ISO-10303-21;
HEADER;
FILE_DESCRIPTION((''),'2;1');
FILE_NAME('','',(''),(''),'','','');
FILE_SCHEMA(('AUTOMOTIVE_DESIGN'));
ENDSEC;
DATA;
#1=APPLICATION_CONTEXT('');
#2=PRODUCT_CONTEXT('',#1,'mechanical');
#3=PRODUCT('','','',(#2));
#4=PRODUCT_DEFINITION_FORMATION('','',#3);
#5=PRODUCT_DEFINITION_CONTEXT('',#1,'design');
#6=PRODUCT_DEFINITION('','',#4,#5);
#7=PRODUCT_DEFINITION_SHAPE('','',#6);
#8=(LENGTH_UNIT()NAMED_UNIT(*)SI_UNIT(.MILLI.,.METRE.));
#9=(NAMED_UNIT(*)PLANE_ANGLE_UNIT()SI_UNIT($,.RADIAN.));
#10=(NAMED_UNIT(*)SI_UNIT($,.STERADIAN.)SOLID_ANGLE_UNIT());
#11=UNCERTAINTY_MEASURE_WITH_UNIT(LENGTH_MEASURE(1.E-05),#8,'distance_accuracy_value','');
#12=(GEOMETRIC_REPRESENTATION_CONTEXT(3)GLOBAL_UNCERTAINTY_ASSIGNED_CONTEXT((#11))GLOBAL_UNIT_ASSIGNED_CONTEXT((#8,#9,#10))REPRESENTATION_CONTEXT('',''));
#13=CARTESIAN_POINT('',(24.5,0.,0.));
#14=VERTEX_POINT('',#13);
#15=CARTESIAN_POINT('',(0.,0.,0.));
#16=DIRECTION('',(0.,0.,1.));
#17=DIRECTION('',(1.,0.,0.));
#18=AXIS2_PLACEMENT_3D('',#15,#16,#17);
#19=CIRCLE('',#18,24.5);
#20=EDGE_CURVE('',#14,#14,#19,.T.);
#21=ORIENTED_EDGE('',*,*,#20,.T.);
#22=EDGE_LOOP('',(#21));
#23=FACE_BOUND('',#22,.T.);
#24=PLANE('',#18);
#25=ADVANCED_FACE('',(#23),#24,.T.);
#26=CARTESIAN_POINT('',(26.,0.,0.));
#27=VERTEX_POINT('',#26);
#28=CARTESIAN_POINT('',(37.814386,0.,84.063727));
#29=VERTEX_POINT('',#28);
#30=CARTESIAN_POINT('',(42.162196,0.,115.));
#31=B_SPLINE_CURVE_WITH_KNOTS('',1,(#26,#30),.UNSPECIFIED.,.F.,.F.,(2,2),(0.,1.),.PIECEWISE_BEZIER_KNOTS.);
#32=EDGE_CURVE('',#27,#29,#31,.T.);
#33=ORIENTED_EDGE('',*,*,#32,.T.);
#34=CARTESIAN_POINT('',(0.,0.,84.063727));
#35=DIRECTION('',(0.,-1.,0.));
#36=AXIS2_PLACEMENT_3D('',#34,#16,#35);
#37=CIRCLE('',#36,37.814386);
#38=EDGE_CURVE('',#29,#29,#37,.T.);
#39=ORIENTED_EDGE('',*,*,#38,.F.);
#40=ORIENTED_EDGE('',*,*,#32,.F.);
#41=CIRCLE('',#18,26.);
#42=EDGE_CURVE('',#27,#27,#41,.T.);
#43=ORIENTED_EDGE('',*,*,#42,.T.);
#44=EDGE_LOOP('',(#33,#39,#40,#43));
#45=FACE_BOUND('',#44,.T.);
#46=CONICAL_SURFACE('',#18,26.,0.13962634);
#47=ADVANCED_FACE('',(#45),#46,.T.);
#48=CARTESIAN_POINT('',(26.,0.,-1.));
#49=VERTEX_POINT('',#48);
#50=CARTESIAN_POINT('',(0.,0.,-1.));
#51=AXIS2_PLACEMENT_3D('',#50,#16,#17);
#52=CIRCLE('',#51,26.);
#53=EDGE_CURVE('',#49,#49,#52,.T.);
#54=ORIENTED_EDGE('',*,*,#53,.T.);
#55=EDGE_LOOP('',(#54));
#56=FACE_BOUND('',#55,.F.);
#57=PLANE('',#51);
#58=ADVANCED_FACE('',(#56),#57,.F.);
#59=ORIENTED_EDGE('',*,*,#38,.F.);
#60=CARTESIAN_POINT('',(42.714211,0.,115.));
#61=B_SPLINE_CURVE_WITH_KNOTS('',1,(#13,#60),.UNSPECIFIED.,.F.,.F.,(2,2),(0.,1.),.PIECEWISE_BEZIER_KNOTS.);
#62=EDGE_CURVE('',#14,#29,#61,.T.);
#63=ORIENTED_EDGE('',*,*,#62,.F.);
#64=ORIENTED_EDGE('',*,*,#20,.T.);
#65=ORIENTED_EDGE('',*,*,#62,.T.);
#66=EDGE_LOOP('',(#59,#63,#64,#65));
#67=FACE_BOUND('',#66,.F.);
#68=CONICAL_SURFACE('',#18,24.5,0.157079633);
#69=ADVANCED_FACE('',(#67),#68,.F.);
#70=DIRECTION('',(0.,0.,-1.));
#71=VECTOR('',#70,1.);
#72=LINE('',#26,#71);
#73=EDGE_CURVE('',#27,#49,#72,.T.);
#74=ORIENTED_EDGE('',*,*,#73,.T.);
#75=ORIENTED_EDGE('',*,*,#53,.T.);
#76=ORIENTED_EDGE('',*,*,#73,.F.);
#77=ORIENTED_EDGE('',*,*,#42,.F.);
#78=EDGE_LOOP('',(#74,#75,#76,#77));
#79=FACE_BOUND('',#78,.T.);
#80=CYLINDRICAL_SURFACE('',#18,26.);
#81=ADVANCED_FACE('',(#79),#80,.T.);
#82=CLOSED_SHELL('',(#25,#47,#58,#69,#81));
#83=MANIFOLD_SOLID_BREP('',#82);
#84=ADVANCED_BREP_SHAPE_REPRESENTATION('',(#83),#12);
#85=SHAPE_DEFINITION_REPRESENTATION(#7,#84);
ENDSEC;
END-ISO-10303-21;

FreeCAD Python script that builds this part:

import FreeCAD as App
import Part
import Sketcher

V = App.Vector
Q = App.Units.Quantity

doc = App.newDocument("Part")
body = doc.addObject("PartDesign::Body", "Body")

sketch1 = body.newObject("Sketcher::SketchObject", "Sketch")
sketch1.AttachmentSupport = (doc.getObject("XY_Plane"), [""])
sketch1.MapMode = "FlatFace"
sketch1.addGeometry(Part.Circle(V(0, 0, 0), V(0, 0, 1), 26), False)
sketch1.addConstraint(Sketcher.Constraint("Coincident", 0, 3, -1, 1))
sketch1.addConstraint(Sketcher.Constraint("Diameter", 0, Q("52 mm")))
pad1 = body.newObject("PartDesign::Pad", "Pad")
pad1.Profile = sketch1
pad1.Length = 115
pad1.TaperAngle = 8
pad2 = body.newObject("PartDesign::Pad", "Pad001")
pad2.Profile = sketch1
pad2.Length = 1
pad2.Reversed = True

sketch2 = body.newObject("Sketcher::SketchObject", "Sketch001")
sketch2.AttachmentSupport = (doc.getObject("XY_Plane"), [""])
sketch2.MapMode = "FlatFace"
sketch2.addGeometry(Part.Circle(V(0, 0, 0), V(0, 0, 1), 24), False)
sketch2.addConstraint(Sketcher.Constraint("Coincident", 0, 3, -1, 1))
sketch2.addConstraint(Sketcher.Constraint("Diameter", 0, Q("49 mm")))
pocket1 = body.newObject("PartDesign::Pocket", "Pocket")
pocket1.Profile = sketch2
pocket1.Length = 115
pocket1.Reversed = True
pocket1.TaperAngle = 9

doc.recompute()
